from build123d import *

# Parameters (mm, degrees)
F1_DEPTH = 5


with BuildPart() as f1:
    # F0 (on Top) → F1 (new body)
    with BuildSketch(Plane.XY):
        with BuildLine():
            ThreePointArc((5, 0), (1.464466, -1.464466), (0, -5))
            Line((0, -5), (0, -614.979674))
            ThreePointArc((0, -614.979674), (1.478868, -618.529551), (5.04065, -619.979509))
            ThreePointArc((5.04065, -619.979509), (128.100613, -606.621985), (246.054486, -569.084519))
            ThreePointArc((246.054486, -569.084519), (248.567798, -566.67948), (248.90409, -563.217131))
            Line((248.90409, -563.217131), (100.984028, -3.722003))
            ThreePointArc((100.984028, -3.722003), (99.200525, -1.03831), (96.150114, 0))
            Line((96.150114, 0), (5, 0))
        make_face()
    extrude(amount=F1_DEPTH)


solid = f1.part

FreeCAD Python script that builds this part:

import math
import FreeCAD as App
import Part
import Sketcher
Q = App.Units.Quantity

doc = App.newDocument("Part")
params = doc.addObject("Spreadsheet::Sheet", "Params")
for row, (alias, value) in enumerate([
    ("sketch1_radius", "5 mm"),
    ("sketch1_radius2", "5.000001 mm"),
    ("sketch1_radius3", "620.000002 mm"),
    ("sketch1_radius4", "5 mm"),
    ("pad1_length", "5 mm"),
], start=1):
    params.set(f"A{row}", alias)
    params.set(f"B{row}", "=" + value)
    params.setAlias(f"B{row}", alias)

body = doc.addObject("PartDesign::Body", "Body")

sketch1 = body.newObject("Sketcher::SketchObject", "Sketch")
sketch1.AttachmentSupport = (doc.getObject("XY_Plane"), [""])
sketch1.MapMode = "FlatFace"
sketch1.addGeometry([
    Part.ArcOfCircle(Part.Circle(App.Vector(5, -5, 0), App.Vector(0, 0, 1), 5), math.radians(89.999996), math.radians(180.000004)),
    Part.LineSegment(App.Vector(0, -5, 0), App.Vector(0, -614.979674, 0)),
    Part.ArcOfCircle(Part.Circle(App.Vector(5.000001, -614.979673, 0), App.Vector(0, 0, 1), 5.000001), math.radians(-179.999991), math.radians(-89.534192)),
    Part.ArcOfCircle(Part.Circle(App.Vector(0, 0.000002, 0), App.Vector(0, 0, 1), 620.000002), math.radians(-89.534176), math.radians(-66.617842)),
    Part.ArcOfCircle(Part.Circle(App.Vector(244.070176, -564.495127, 0), App.Vector(0, 0, 1), 5), math.radians(-66.617845), math.radians(14.809098)),
    Part.LineSegment(App.Vector(248.90409, -563.217131, 0), App.Vector(100.984028, -3.722003, 0)),
    Part.ArcOfCircle(Part.Circle(App.Vector(96.150112, -5.000002, 0), App.Vector(0, 0, 1), 5.000002), math.radians(14.809124), math.radians(89.999982)),
    Part.LineSegment(App.Vector(96.150114, 0, 0), App.Vector(5, 0, 0)),
], False)
sketch1.addConstraint([
    Sketcher.Constraint("Coincident", 0, 2, 1, 1),
    Sketcher.Constraint("Coincident", 1, 2, 2, 1),
    Sketcher.Constraint("Coincident", 2, 2, 3, 1),
    Sketcher.Constraint("Coincident", 3, 2, 4, 1),
    Sketcher.Constraint("Coincident", 4, 2, 5, 1),
    Sketcher.Constraint("Coincident", 5, 2, 6, 1),
    Sketcher.Constraint("Coincident", 6, 2, 7, 1),
    Sketcher.Constraint("Coincident", 7, 2, 0, 1),
    Sketcher.Constraint("Vertical", 1),
    Sketcher.Constraint("Horizontal", 7),
    Sketcher.Constraint("Coincident", 3, 3, -1, 1),
    Sketcher.Constraint("PointOnObject", 0, 2, -2),
    Sketcher.Constraint("PointOnObject", 6, 2, -1),
    Sketcher.Constraint("Radius", 0, Q("5 mm")),
    Sketcher.Constraint("Radius", 2, Q("5.000001 mm")),
    Sketcher.Constraint("Radius", 3, Q("620.000002 mm")),
    Sketcher.Constraint("Radius", 4, Q("5 mm")),
    Sketcher.Constraint("DistanceY", 0, 2, -1, 1, Q("5 mm")),
    Sketcher.Constraint("DistanceX", -1, 1, 7, 2, Q("5 mm")),
    Sketcher.Constraint("Radius", 6, Q("5.000002 mm")),
    Sketcher.Constraint("DistanceY", 6, 3, 5, 2, Q("1.277999 mm")),
    Sketcher.Constraint("DistanceX", 7, 2, 7, 1, Q("91.150114 mm")),
    Sketcher.Constraint("DistanceY", 1, 2, 1, 1, Q("609.979674 mm")),
    Sketcher.Constraint("DistanceX", -1, 1, 2, 2, Q("5.04065 mm")),
    Sketcher.Constraint("DistanceY", 3, 2, -1, 1, Q("569.084519 mm")),
    Sketcher.Constraint("DistanceX", -1, 1, 4, 2, Q("248.90409 mm")),
    Sketcher.Constraint("DistanceY", 4, 2, -1, 1, Q("563.217131 mm")),
    Sketcher.Constraint("DistanceX", 2, 3, 6, 3, Q("91.150111 mm")),
])
sketch1.setExpression("Constraints[13]", "Params.sketch1_radius")
sketch1.setExpression("Constraints[14]", "Params.sketch1_radius2")
sketch1.setExpression("Constraints[15]", "Params.sketch1_radius3")
sketch1.setExpression("Constraints[16]", "Params.sketch1_radius4")
pad1 = body.newObject("PartDesign::Pad", "Pad")
pad1.Profile = sketch1
pad1.setExpression("Length", "Params.pad1_length")

doc.recompute()
